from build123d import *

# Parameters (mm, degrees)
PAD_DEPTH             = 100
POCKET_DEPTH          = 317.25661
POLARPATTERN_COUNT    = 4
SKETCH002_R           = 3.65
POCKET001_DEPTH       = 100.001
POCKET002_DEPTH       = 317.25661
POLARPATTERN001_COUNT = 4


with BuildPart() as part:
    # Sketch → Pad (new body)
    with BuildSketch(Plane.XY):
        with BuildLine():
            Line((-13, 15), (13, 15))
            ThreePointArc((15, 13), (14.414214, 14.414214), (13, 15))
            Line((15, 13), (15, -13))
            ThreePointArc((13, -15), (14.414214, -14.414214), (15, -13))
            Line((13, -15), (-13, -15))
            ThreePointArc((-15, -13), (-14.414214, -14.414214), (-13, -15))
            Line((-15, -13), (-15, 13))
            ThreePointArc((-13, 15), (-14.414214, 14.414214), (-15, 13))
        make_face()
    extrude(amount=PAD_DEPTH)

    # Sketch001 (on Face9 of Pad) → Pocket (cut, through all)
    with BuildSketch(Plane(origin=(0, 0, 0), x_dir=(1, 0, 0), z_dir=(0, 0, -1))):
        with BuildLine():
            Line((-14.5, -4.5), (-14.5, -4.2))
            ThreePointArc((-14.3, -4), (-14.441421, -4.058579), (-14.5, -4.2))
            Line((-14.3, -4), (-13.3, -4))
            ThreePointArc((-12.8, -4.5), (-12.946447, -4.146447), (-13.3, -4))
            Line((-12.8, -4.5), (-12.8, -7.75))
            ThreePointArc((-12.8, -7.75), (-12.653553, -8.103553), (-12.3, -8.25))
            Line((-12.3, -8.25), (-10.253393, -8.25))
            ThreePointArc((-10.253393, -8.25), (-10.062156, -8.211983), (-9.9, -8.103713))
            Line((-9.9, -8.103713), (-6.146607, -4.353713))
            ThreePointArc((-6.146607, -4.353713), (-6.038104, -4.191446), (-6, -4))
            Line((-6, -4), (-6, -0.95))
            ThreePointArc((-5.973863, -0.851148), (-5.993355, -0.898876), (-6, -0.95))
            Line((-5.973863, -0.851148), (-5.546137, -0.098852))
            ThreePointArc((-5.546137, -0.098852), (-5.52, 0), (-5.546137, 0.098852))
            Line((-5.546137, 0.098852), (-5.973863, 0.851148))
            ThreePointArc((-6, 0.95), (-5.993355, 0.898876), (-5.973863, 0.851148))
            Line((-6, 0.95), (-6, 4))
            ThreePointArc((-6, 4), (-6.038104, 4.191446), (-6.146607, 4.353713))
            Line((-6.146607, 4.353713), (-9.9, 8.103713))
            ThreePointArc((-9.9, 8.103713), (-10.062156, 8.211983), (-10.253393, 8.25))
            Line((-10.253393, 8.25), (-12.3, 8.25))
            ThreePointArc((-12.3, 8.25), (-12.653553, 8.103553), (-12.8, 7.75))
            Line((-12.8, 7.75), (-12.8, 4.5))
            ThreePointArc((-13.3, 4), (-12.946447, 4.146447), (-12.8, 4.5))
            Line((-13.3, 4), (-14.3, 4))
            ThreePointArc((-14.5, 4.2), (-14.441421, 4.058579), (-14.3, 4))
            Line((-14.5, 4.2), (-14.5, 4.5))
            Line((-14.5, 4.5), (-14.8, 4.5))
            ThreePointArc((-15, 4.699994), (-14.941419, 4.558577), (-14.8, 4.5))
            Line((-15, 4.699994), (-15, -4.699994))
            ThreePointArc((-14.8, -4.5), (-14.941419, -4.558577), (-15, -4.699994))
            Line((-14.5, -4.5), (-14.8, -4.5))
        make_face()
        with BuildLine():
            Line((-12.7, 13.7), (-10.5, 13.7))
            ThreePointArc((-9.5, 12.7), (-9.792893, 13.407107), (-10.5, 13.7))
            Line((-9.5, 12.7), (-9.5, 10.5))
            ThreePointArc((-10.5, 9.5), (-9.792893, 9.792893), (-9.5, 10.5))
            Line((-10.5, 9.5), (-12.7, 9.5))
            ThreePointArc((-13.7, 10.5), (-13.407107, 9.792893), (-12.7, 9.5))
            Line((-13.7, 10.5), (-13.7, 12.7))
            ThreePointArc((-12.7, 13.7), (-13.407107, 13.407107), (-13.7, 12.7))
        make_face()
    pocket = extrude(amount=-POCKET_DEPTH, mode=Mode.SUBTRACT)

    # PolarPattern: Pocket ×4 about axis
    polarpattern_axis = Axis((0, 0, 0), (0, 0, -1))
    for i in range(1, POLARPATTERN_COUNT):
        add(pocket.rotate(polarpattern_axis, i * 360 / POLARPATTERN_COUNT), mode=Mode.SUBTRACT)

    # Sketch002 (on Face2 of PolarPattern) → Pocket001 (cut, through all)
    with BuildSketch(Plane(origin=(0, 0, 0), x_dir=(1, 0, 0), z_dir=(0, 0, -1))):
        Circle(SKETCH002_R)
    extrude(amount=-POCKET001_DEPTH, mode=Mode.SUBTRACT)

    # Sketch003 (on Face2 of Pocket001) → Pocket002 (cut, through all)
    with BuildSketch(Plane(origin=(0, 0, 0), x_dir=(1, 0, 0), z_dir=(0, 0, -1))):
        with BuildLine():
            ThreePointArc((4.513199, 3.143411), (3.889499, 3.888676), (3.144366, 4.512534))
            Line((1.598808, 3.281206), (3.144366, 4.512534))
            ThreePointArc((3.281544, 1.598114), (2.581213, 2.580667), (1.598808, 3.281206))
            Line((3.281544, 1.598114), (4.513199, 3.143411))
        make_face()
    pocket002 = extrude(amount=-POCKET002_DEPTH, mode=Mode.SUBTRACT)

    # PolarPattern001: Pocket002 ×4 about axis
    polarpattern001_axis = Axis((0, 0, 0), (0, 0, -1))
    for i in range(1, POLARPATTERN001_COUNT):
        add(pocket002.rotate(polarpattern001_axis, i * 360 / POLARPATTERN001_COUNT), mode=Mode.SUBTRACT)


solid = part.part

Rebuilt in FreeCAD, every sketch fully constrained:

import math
import FreeCAD as App
import Part
import Sketcher

V = App.Vector
Q = App.Units.Quantity

doc = App.newDocument("Part")
body = doc.addObject("PartDesign::Body", "Body")

sketch1 = body.newObject("Sketcher::SketchObject", "Sketch")
sketch1.AttachmentSupport = (doc.getObject("XY_Plane"), [""])
sketch1.MapMode = "FlatFace"
sketch1.addGeometry([
    Part.LineSegment(V(13, 15, 0), V(-13, 15, 0)),
    Part.ArcOfCircle(Part.Circle(V(-13, 13, 0), V(0, 0, 1), 2), math.radians(90), math.radians(180)),
    Part.LineSegment(V(-15, 13, 0), V(-15, -13, 0)),
    Part.ArcOfCircle(Part.Circle(V(-13, -13, 0), V(0, 0, 1), 2), math.radians(180), math.radians(270)),
    Part.LineSegment(V(-13, -15, 0), V(13, -15, 0)),
    Part.ArcOfCircle(Part.Circle(V(13, -13, 0), V(0, 0, 1), 2), math.radians(-90), math.radians(0)),
    Part.LineSegment(V(15, -13, 0), V(15, 13, 0)),
    Part.ArcOfCircle(Part.Circle(V(13, 13, 0), V(0, 0, 1), 2), math.radians(0), math.radians(90)),
], False)
sketch1.addConstraint([
    Sketcher.Constraint("Tangent", 0, 2, 1, 1),
    Sketcher.Constraint("Tangent", 1, 2, 2, 1),
    Sketcher.Constraint("Tangent", 2, 2, 3, 1),
    Sketcher.Constraint("Tangent", 3, 2, 4, 1),
    Sketcher.Constraint("Tangent", 4, 2, 5, 1),
    Sketcher.Constraint("Tangent", 5, 2, 6, 1),
    Sketcher.Constraint("Tangent", 6, 2, 7, 1),
    Sketcher.Constraint("Tangent", 7, 2, 0, 1),
    Sketcher.Constraint("Horizontal", 0),
    Sketcher.Constraint("Vertical", 2),
    Sketcher.Constraint("Horizontal", 4),
    Sketcher.Constraint("Vertical", 6),
    Sketcher.Constraint("Equal", 1, 3),
    Sketcher.Constraint("Equal", 3, 5),
    Sketcher.Constraint("Equal", 5, 7),
    Sketcher.Constraint("Symmetric", 1, 3, 5, 3, -1, 1),
    Sketcher.Constraint("Equal", 4, 2),
    Sketcher.Constraint("Radius", 1, Q("1.999999 mm")),
    Sketcher.Constraint("DistanceX", 0, 2, 0, 1, Q("26 mm")),
])
pad1 = body.newObject("PartDesign::Pad", "Pad")
pad1.Profile = sketch1
pad1.Length = 100

sketch2 = body.newObject("Sketcher::SketchObject", "Sketch001")
sketch2.AttachmentSupport = (doc.getObject("XY_Plane"), [""])
sketch2.MapMode = "FlatFace"
sketch2.addGeometry([
    Part.LineSegment(V(-14.5, 4.5, 0), V(-14.5, 4.2, 0)),
    Part.ArcOfCircle(Part.Circle(V(-14.3, 4.2, 0), V(0, 0, 1), 0.2), math.radians(-180), math.radians(-90)),
    Part.LineSegment(V(-14.3, 4, 0), V(-13.3, 4, 0)),
    Part.ArcOfCircle(Part.Circle(V(-13.3, 4.5, 0), V(0, 0, 1), 0.5), math.radians(-90), math.radians(0)),
    Part.LineSegment(V(-12.8, 4.5, 0), V(-12.8, 7.75, 0)),
    Part.ArcOfCircle(Part.Circle(V(-12.3, 7.75, 0), V(0, 0, 1), 0.5), math.radians(90), math.radians(180)),
    Part.LineSegment(V(-12.3, 8.25, 0), V(-10.25, 8.25, 0)),
    Part.ArcOfCircle(Part.Circle(V(-10.25, 7.75, 0), V(0, 0, 1), 0.5), math.radians(45), math.radians(90)),
    Part.LineSegment(V(-9.9, 8.1, 0), V(-6.15, 4.35, 0)),
    Part.ArcOfCircle(Part.Circle(V(-6.5, 4, 0), V(0, 0, 1), 0.5), math.radians(0), math.radians(45)),
    Part.LineSegment(V(-6, 4, 0), V(-6, 0.95, 0)),
    Part.ArcOfCircle(Part.Circle(V(-5.8, 0.95, 0), V(0, 0, 1), 0.2), math.radians(-180), math.radians(-150)),
    Part.LineSegment(V(-5.97, 0.85, 0), V(-5.55, 0.1, 0)),
    Part.ArcOfCircle(Part.Circle(V(-5.72, 0, 0), V(0, 0, 1), 0.2), math.radians(-30), math.radians(30)),
    Part.LineSegment(V(-5.55, -0.1, 0), V(-5.97, -0.85, 0)),
    Part.ArcOfCircle(Part.Circle(V(-5.8, -0.95, 0), V(0, 0, 1), 0.2), math.radians(150), math.radians(180)),
    Part.LineSegment(V(-6, -0.95, 0), V(-6, -4, 0)),
    Part.ArcOfCircle(Part.Circle(V(-6.5, -4, 0), V(0, 0, 1), 0.5), math.radians(-45), math.radians(0)),
    Part.LineSegment(V(-6.15, -4.35, 0), V(-9.9, -8.1, 0)),
    Part.ArcOfCircle(Part.Circle(V(-10.25, -7.75, 0), V(0, 0, 1), 0.5), math.radians(-90), math.radians(-45)),
    Part.LineSegment(V(-10.25, -8.25, 0), V(-12.3, -8.25, 0)),
    Part.ArcOfCircle(Part.Circle(V(-12.3, -7.75, 0), V(0, 0, 1), 0.5), math.radians(-180), math.radians(-90)),
    Part.LineSegment(V(-12.8, -7.75, 0), V(-12.8, -4.5, 0)),
    Part.ArcOfCircle(Part.Circle(V(-13.3, -4.5, 0), V(0, 0, 1), 0.5), math.radians(0), math.radians(90)),
    Part.LineSegment(V(-13.3, -4, 0), V(-14.3, -4, 0)),
    Part.ArcOfCircle(Part.Circle(V(-14.3, -4.2, 0), V(0, 0, 1), 0.2), math.radians(90), math.radians(180)),
    Part.LineSegment(V(-14.5, -4.2, 0), V(-14.5, -4.5, 0)),
    Part.LineSegment(V(-14.5, -4.5, 0), V(-14.8, -4.5, 0)),
    Part.ArcOfCircle(Part.Circle(V(-14.8, -4.7, 0), V(0, 0, 1), 0.2), math.radians(90), math.radians(180)),
    Part.LineSegment(V(-15, -4.7, 0), V(-15, 4.7, 0)),
    Part.ArcOfCircle(Part.Circle(V(-14.8, 4.7, 0), V(0, 0, 1), 0.2), math.radians(-180), math.radians(-90)),
    Part.LineSegment(V(-14.8, 4.5, 0), V(-14.5, 4.5, 0)),
    Part.LineSegment(V(-10.5, -13.7, 0), V(-12.7, -13.7, 0)),
    Part.ArcOfCircle(Part.Circle(V(-12.7, -12.7, 0), V(0, 0, 1), 1), math.radians(180), math.radians(270)),
    Part.LineSegment(V(-13.7, -12.7, 0), V(-13.7, -10.5, 0)),
    Part.ArcOfCircle(Part.Circle(V(-12.7, -10.5, 0), V(0, 0, 1), 1), math.radians(90), math.radians(180)),
    Part.LineSegment(V(-12.7, -9.5, 0), V(-10.5, -9.5, 0)),
    Part.ArcOfCircle(Part.Circle(V(-10.5, -10.5, 0), V(0, 0, 1), 1), math.radians(0), math.radians(90)),
    Part.LineSegment(V(-9.5, -10.5, 0), V(-9.5, -12.7, 0)),
    Part.ArcOfCircle(Part.Circle(V(-10.5, -12.7, 0), V(0, 0, 1), 1), math.radians(-90), math.radians(0)),
], False)
sketch2.addConstraint([
    Sketcher.Constraint("Coincident", 0, 2, 1, 1),
    Sketcher.Constraint("Coincident", 1, 2, 2, 1),
    Sketcher.Constraint("Coincident", 2, 2, 3, 1),
    Sketcher.Constraint("Coincident", 3, 2, 4, 1),
    Sketcher.Constraint("Coincident", 4, 2, 5, 2),
    Sketcher.Constraint("Coincident", 5, 1, 6, 1),
    Sketcher.Constraint("Tangent", 6, 2, 7, 2),
    Sketcher.Constraint("Coincident", 7, 1, 8, 1),
    Sketcher.Constraint("Tangent", 8, 2, 9, 2),
    Sketcher.Constraint("Coincident", 9, 1, 10, 1),
    Sketcher.Constraint("Coincident", 10, 2, 11, 1),
    Sketcher.Constraint("Coincident", 11, 2, 12, 1),
    Sketcher.Constraint("Tangent", 12, 2, 13, 2),
    Sketcher.Constraint("Tangent", 13, 1, 14, 1),
    Sketcher.Constraint("Coincident", 14, 2, 15, 1),
    Sketcher.Constraint("Coincident", 15, 2, 16, 1),
    Sketcher.Constraint("Coincident", 16, 2, 17, 2),
    Sketcher.Constraint("Tangent", 17, 1, 18, 1),
    Sketcher.Constraint("Coincident", 18, 2, 19, 2),
    Sketcher.Constraint("Tangent", 19, 1, 20, 1),
    Sketcher.Constraint("Coincident", 20, 2, 21, 2),
    Sketcher.Constraint("Coincident", 21, 1, 22, 1),
    Sketcher.Constraint("Coincident", 22, 2, 23, 1),
    Sketcher.Constraint("Coincident", 23, 2, 24, 1),
    Sketcher.Constraint("Coincident", 24, 2, 25, 1),
    Sketcher.Constraint("Coincident", 25, 2, 26, 1),
    Sketcher.Constraint("Coincident", 26, 2, 27, 1),
    Sketcher.Constraint("Coincident", 27, 2, 28, 1),
    Sketcher.Constraint("Coincident", 28, 2, 29, 1),
    Sketcher.Constraint("Coincident", 29, 2, 30, 1),
    Sketcher.Constraint("Coincident", 30, 2, 31, 1),
    Sketcher.Constraint("Coincident", 31, 2, 0, 1),
    Sketcher.Constraint("Tangent", 32, 2, 33, 2),
    Sketcher.Constraint("Tangent", 33, 1, 34, 1),
    Sketcher.Constraint("Tangent", 34, 2, 35, 2),
    Sketcher.Constraint("Tangent", 35, 1, 36, 1),
    Sketcher.Constraint("Tangent", 36, 2, 37, 2),
    Sketcher.Constraint("Tangent", 37, 1, 38, 1),
    Sketcher.Constraint("Tangent", 38, 2, 39, 2),
    Sketcher.Constraint("Tangent", 39, 1, 32, 1),
    Sketcher.Constraint("Vertical", 0),
    Sketcher.Constraint("Horizontal", 2),
    Sketcher.Constraint("Vertical", 4),
    Sketcher.Constraint("Horizontal", 6),
    Sketcher.Constraint("Vertical", 10),
    Sketcher.Constraint("Vertical", 16),
    Sketcher.Constraint("Horizontal", 20),
    Sketcher.Constraint("Vertical", 22),
    Sketcher.Constraint("Horizontal", 24),
    Sketcher.Constraint("Vertical", 26),
    Sketcher.Constraint("Horizontal", 27),
    Sketcher.Constraint("Vertical", 29),
    Sketcher.Constraint("Horizontal", 31),
    Sketcher.Constraint("Horizontal", 32),
    Sketcher.Constraint("Vertical", 34),
    Sketcher.Constraint("Horizontal", 36),
    Sketcher.Constraint("Vertical", 38),
    Sketcher.Constraint("Equal", 3, 5),
    Sketcher.Constraint("Equal", 5, 9),
    Sketcher.Constraint("Equal", 1, 13),
    Sketcher.Constraint("Equal", 11, 15),
    Sketcher.Constraint("Equal", 9, 17),
    Sketcher.Constraint("Equal", 7, 19),
    Sketcher.Constraint("Equal", 17, 21),
    Sketcher.Constraint("Equal", 21, 23),
    Sketcher.Constraint("Equal", 13, 25),
    Sketcher.Constraint("Equal", 25, 28),
    Sketcher.Constraint("Equal", 28, 30),
    Sketcher.Constraint("Equal", 33, 35),
    Sketcher.Constraint("Equal", 35, 37),
    Sketcher.Constraint("Equal", 37, 39),
    Sketcher.Constraint("Symmetric", 11, 3, 15, 3, -1),
    Sketcher.Constraint("Symmetric", 7, 3, 19, 3, -1),
    Sketcher.Constraint("Symmetric", 3, 3, 23, 3, -1),
    Sketcher.Constraint("Symmetric", 0, 2, 25, 2, -1),
    Sketcher.Constraint("Symmetric", 27, 2, 30, 2, -1),
    Sketcher.Constraint("PointOnObject", 13, 3, -1),
    Sketcher.Constraint("Horizontal", 1, 3, 0, 2),
    Sketcher.Constraint("Horizontal", 9, 3, 1, 2),
    Sketcher.Constraint("Horizontal", 7, 3, 4, 2),
    Sketcher.Constraint("Horizontal", 2, 2, 9, 1),
    Sketcher.Constraint("Horizontal", 17, 3, 16, 2),
    Sketcher.Constraint("Horizontal", 19, 3, 21, 1),
    Sketcher.Constraint("Horizontal", 23, 3, 22, 2),
    Sketcher.Constraint("Horizontal", 16, 2, 23, 2),
    Sketcher.Constraint("Horizontal", 22, 2, 26, 2),
    Sketcher.Constraint("Horizontal", 3, 2, 30, 2),
    Sketcher.Constraint("Vertical", 25, 3, 1, 2),
    Sketcher.Constraint("Vertical", 23, 3, 2, 2),
    Sketcher.Constraint("Vertical", 21, 3, 5, 1),
    Sketcher.Constraint("Vertical", 11, 2, 14, 2),
    Sketcher.Constraint("Vertical", 7, 1, 18, 2),
    Sketcher.Constraint("Vertical", 5, 1, 20, 2),
    Sketcher.Constraint("Vertical", 2, 2, 23, 2),
    Sketcher.Constraint("Vertical", 1, 2, 24, 2),
    Sketcher.Constraint("Vertical", 30, 3, 27, 2),
    Sketcher.Constraint("Equal", 31, 0),
    Sketcher.Constraint("Equal", 10, 16),
    Sketcher.Constraint("Equal", 36, 34),
    Sketcher.Constraint("Radius", 33, Q("0.999999 mm")),
    Sketcher.Constraint("Radius", 1, Q("0.200001 mm")),
    Sketcher.Constraint("Radius", 3, Q("0.500001 mm")),
    Sketcher.Constraint("Radius", 7, Q("0.499998 mm")),
    Sketcher.Constraint("DistanceX", 2, 1, 2, 2, Q("1 mm")),
    Sketcher.Constraint("DistanceX", 32, 2, 32, 1, Q("2.2 mm")),
    Sketcher.Constraint("DistanceY", -1, 1, 9, 3, Q("3.999998 mm")),
    Sketcher.Constraint("DistanceX", 9, 1, -1, 1, Q("6 mm")),
    Sketcher.Constraint("DistanceX", 28, 2, -1, 1, Q("15 mm")),
    Sketcher.Constraint("DistanceY", 33, 3, 28, 3, Q("8 mm")),
    Sketcher.Constraint("DistanceY", 4, 1, 4, 2, Q("3.25 mm")),
    Sketcher.Constraint("DistanceY", 10, 2, 10, 1, Q("3.05 mm")),
    Sketcher.Constraint("DistanceX", 33, 3, -1, 1, Q("12.700001 mm")),
    Sketcher.Constraint("DistanceX", 7, 1, -1, 1, Q("9.9 mm")),
    Sketcher.Constraint("DistanceY", 11, 3, 7, 3, Q("6.799998 mm")),
    Sketcher.Constraint("DistanceX", 13, 3, -1, 1, Q("5.720001 mm")),
    Sketcher.Constraint("DistanceY", 8, 2, 7, 1, Q("3.75 mm")),
    Sketcher.Constraint("DistanceY", 13, 1, 11, 2, Q("0.95 mm")),
    Sketcher.Constraint("Radius", 11, Q("0.200015 mm")),
    Sketcher.Constraint("DistanceY", 29, 1, 29, 2, Q("9.399988 mm")),
    Sketcher.Constraint("DistanceY", 28, 2, -1, 1, Q("4.699994 mm")),
])
pocket1 = body.newObject("PartDesign::Pocket", "Pocket")
pocket1.Profile = sketch2
pocket1.Type = "ThroughAll"
pocket1.Reversed = True
doc.recompute()

polarpattern = body.newObject("PartDesign::PolarPattern", "PolarPattern")
polarpattern.Originals = [pocket1]
polarpattern.Axis = (doc.getObject("Z_Axis"), [""])
polarpattern.Angle = 360
polarpattern.Occurrences = 4
body.Tip = polarpattern

sketch3 = body.newObject("Sketcher::SketchObject", "Sketch002")
sketch3.AttachmentSupport = (doc.getObject("XY_Plane"), [""])
sketch3.MapMode = "FlatFace"
sketch3.addGeometry(Part.Circle(V(0, 0, 0), V(0, 0, 1), 3.6), False)
sketch3.addConstraint([
    Sketcher.Constraint("Coincident", 0, 3, -1, 1),
    Sketcher.Constraint("Diameter", 0, Q("7.3 mm")),
])
pocket2 = body.newObject("PartDesign::Pocket", "Pocket001")
pocket2.Profile = sketch3
pocket2.Type = "ThroughAll"
pocket2.Reversed = True

sketch4 = body.newObject("Sketcher::SketchObject", "Sketch003")
sketch4.AttachmentSupport = (doc.getObject("XY_Plane"), [""])
sketch4.MapMode = "FlatFace"
sketch4.addGeometry([
    Part.ArcOfCircle(Part.Circle(V(0, 0, 0), V(0, 0, 1), 5.5), math.radians(-55), math.radians(-35)),
    Part.LineSegment(V(3.1, -4.5, 0), V(1.6, -3.3, 0)),
    Part.ArcOfCircle(Part.Circle(V(0, 0, 0), V(0, 0, 1), 3.6), math.radians(-64), math.radians(-26)),
    Part.LineSegment(V(3.3, -1.6, 0), V(4.5, -3.1, 0)),
], False)
sketch4.addConstraint([
    Sketcher.Constraint("Coincident", 0, 1, 1, 1),
    Sketcher.Constraint("Coincident", 1, 2, 2, 1),
    Sketcher.Constraint("Coincident", 2, 2, 3, 1),
    Sketcher.Constraint("Coincident", 3, 2, 0, 2),
    Sketcher.Constraint("Coincident", 2, 3, -1, 1),
    Sketcher.Constraint("Equal", 1, 3),
    Sketcher.Constraint("Radius", 0, Q("5.499976 mm")),
    Sketcher.Constraint("Radius", 2, Q("3.649993 mm")),
    Sketcher.Constraint("DistanceX", -1, 1, 3, 2, Q("4.513199 mm")),
    Sketcher.Constraint("DistanceY", 1, 2, 2, 3, Q("3.2812 mm")),
    Sketcher.Constraint("DistanceY", 3, 2, -1, 1, Q("3.143411 mm")),
    Sketcher.Constraint("DistanceX", 0, 3, 0, 1, Q("3.144349 mm")),
    Sketcher.Constraint("DistanceX", 2, 3, 0, 1, Q("3.144361 mm")),
])
pocket3 = body.newObject("PartDesign::Pocket", "Pocket002")
pocket3.Profile = sketch4
pocket3.Type = "ThroughAll"
pocket3.Reversed = True
doc.recompute()

polarpattern2 = body.newObject("PartDesign::PolarPattern", "PolarPattern001")
polarpattern2.Originals = [pocket3]
polarpattern2.Axis = (doc.getObject("Z_Axis"), [""])
polarpattern2.Angle = 360
polarpattern2.Occurrences = 4
body.Tip = polarpattern2

doc.recompute()
